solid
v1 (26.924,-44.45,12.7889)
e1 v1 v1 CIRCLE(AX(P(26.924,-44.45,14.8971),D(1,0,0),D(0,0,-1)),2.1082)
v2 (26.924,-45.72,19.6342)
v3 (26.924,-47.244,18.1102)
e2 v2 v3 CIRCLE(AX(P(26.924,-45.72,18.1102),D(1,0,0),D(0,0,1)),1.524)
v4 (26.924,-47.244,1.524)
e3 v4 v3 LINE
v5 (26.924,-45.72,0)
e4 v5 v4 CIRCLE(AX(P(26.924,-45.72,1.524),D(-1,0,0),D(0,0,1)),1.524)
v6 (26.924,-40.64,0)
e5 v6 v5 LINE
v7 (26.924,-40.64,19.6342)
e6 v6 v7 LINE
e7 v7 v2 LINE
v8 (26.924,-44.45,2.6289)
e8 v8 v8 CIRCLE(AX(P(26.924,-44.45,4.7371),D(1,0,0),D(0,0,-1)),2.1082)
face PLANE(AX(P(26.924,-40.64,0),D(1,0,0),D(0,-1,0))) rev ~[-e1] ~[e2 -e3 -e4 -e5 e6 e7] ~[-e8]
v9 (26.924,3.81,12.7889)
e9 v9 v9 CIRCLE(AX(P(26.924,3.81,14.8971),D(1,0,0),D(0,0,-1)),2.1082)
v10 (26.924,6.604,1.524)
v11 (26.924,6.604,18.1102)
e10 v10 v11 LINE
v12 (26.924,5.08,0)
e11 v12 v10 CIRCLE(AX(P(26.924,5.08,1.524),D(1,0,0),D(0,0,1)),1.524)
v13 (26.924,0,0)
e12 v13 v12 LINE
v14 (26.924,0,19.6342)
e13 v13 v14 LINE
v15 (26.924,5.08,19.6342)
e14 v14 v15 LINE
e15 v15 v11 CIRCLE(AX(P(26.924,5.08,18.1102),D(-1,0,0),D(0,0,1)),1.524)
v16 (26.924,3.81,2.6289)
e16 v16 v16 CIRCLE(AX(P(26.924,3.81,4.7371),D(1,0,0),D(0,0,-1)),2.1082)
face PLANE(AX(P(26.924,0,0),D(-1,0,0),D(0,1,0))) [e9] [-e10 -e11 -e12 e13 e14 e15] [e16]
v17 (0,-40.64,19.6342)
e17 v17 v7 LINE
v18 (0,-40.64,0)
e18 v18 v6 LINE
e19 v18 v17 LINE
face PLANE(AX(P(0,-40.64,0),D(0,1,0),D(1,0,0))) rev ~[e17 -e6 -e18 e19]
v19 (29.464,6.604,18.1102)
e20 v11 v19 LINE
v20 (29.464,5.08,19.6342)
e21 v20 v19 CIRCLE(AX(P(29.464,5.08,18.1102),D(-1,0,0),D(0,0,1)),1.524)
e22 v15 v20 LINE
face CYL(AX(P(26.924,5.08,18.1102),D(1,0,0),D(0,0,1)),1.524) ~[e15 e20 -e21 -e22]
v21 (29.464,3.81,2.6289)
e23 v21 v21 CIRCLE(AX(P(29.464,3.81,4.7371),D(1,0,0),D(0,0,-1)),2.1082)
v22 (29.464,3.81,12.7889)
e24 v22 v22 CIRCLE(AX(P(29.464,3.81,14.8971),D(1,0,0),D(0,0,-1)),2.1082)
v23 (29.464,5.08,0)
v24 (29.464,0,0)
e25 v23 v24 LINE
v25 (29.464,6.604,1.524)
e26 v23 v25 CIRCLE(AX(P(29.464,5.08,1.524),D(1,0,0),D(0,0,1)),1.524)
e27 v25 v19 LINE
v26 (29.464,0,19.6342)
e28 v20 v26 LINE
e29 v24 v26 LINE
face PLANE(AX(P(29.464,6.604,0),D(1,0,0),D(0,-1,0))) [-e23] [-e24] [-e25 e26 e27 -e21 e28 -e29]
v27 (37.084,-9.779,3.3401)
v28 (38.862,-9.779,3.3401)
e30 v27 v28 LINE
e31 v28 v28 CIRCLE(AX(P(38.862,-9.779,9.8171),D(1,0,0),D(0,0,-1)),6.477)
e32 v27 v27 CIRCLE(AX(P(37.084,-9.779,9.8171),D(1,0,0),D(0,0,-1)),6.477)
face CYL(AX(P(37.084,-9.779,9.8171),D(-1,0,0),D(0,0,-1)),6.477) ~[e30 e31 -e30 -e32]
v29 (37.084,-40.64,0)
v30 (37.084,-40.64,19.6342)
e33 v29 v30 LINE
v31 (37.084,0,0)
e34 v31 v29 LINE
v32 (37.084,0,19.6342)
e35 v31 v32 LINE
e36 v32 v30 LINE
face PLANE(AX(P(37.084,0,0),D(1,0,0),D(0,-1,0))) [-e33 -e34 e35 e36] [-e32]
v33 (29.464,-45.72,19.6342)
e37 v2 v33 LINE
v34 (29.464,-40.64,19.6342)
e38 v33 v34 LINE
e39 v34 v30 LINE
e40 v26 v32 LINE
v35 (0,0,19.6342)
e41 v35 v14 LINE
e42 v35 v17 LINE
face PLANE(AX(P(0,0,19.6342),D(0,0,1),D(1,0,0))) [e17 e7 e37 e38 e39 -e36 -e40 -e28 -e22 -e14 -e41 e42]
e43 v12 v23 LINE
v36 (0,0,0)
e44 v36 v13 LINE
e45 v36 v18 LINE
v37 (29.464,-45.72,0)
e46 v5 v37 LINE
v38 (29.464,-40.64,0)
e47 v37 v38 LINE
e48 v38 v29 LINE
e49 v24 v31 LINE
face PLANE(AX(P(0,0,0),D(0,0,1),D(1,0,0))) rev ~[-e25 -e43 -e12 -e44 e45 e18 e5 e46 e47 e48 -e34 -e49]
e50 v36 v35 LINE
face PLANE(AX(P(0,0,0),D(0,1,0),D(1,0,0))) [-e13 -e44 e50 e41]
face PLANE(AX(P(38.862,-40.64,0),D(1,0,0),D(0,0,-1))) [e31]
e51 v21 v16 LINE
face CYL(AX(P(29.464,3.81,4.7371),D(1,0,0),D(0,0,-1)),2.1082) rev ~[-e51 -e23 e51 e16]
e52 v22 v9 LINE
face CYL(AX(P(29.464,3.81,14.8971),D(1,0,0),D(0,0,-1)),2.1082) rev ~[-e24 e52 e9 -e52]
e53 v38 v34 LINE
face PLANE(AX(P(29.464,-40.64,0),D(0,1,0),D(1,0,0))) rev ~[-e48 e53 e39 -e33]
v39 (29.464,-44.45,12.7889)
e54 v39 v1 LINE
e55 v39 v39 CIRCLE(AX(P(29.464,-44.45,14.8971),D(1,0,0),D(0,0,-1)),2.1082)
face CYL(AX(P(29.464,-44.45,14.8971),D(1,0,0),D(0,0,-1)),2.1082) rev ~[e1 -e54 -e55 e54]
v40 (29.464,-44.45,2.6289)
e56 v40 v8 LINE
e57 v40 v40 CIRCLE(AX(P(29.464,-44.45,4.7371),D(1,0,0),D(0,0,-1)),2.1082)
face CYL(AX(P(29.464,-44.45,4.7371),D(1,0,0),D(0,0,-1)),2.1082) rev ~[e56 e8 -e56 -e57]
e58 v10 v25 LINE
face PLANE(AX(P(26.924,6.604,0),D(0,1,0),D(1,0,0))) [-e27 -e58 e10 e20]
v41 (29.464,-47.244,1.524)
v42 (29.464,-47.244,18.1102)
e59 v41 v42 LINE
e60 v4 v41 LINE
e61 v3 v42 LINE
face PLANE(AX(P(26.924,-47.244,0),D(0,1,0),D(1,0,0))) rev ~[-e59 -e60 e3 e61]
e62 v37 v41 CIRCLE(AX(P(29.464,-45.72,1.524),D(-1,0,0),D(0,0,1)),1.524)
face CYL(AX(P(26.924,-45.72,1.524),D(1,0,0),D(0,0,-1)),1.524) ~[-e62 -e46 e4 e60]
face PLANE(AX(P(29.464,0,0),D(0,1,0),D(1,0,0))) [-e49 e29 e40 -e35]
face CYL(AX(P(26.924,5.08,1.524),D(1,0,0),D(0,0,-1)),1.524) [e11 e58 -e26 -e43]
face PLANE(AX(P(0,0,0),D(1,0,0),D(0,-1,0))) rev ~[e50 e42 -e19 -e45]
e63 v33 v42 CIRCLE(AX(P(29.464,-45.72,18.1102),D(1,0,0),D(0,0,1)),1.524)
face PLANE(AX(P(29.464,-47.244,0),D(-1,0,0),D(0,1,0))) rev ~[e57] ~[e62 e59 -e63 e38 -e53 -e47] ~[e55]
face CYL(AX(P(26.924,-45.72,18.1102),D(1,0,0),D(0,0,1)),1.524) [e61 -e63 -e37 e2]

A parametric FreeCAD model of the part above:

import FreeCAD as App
import Part
import Sketcher

V = App.Vector
Q = App.Units.Quantity


def edges_at(feature, points):
    """Names of the edges that pass closest to the given points."""
    edges = feature.Shape.Edges
    near = lambda p: min(range(len(edges)), key=lambda i: edges[i].distToShape(Part.Vertex(*p))[0])
    return sorted({f"Edge{near(p) + 1}" for p in points})

doc = App.newDocument("Part")
body = doc.addObject("PartDesign::Body", "Body")

sketch1 = body.newObject("Sketcher::SketchObject", "Sketch")
sketch1.AttachmentSupport = (doc.getObject("XY_Plane"), [""])
sketch1.MapMode = "FlatFace"
sketch1.addGeometry(Part.LineSegment(V(26.9, 0, 0), V(0, 0, 0)), False)
sketch1.addGeometry(Part.LineSegment(V(0, 0, 0), V(0, -40.6, 0)), False)
sketch1.addGeometry(Part.LineSegment(V(0, -40.6, 0), V(26.9, -40.6, 0)), False)
sketch1.addGeometry(Part.LineSegment(V(26.9, -40.6, 0), V(26.9, -47.2, 0)), False)
sketch1.addGeometry(Part.LineSegment(V(26.9, -47.2, 0), V(29.5, -47.2, 0)), False)
sketch1.addGeometry(Part.LineSegment(V(29.5, -47.2, 0), V(29.5, -40.6, 0)), False)
sketch1.addGeometry(Part.LineSegment(V(29.5, -40.6, 0), V(37.1, -40.6, 0)), False)
sketch1.addGeometry(Part.LineSegment(V(37.1, -40.6, 0), V(37.1, 0, 0)), False)
sketch1.addGeometry(Part.LineSegment(V(37.1, 0, 0), V(29.5, 0, 0)), False)
sketch1.addGeometry(Part.LineSegment(V(29.5, 0, 0), V(29.5, 6.6, 0)), False)
sketch1.addGeometry(Part.LineSegment(V(29.5, 6.6, 0), V(26.9, 6.6, 0)), False)
sketch1.addGeometry(Part.LineSegment(V(26.9, 6.6, 0), V(26.9, 0, 0)), False)
sketch1.addConstraint(Sketcher.Constraint("Coincident", 0, 2, 1, 1))
sketch1.addConstraint(Sketcher.Constraint("Coincident", 1, 2, 2, 1))
sketch1.addConstraint(Sketcher.Constraint("Coincident", 2, 2, 3, 1))
sketch1.addConstraint(Sketcher.Constraint("Coincident", 3, 2, 4, 1))
sketch1.addConstraint(Sketcher.Constraint("Coincident", 4, 2, 5, 1))
sketch1.addConstraint(Sketcher.Constraint("Coincident", 5, 2, 6, 1))
sketch1.addConstraint(Sketcher.Constraint("Coincident", 6, 2, 7, 1))
sketch1.addConstraint(Sketcher.Constraint("Coincident", 7, 2, 8, 1))
sketch1.addConstraint(Sketcher.Constraint("Coincident", 8, 2, 9, 1))
sketch1.addConstraint(Sketcher.Constraint("Coincident", 9, 2, 10, 1))
sketch1.addConstraint(Sketcher.Constraint("Coincident", 10, 2, 11, 1))
sketch1.addConstraint(Sketcher.Constraint("Coincident", 11, 2, 0, 1))
sketch1.addConstraint(Sketcher.Constraint("Horizontal", 0))
sketch1.addConstraint(Sketcher.Constraint("Vertical", 1))
sketch1.addConstraint(Sketcher.Constraint("Horizontal", 2))
sketch1.addConstraint(Sketcher.Constraint("Vertical", 3))
sketch1.addConstraint(Sketcher.Constraint("Horizontal", 4))
sketch1.addConstraint(Sketcher.Constraint("Vertical", 5))
sketch1.addConstraint(Sketcher.Constraint("Horizontal", 6))
sketch1.addConstraint(Sketcher.Constraint("Vertical", 7))
sketch1.addConstraint(Sketcher.Constraint("Horizontal", 8))
sketch1.addConstraint(Sketcher.Constraint("Vertical", 9))
sketch1.addConstraint(Sketcher.Constraint("Horizontal", 10))
sketch1.addConstraint(Sketcher.Constraint("Vertical", 11))
sketch1.addConstraint(Sketcher.Constraint("Coincident", 0, 2, -1, 1))
sketch1.addConstraint(Sketcher.Constraint("PointOnObject", 7, 2, -1))
sketch1.addConstraint(Sketcher.Constraint("Horizontal", 2, 2, 5, 2))
sketch1.addConstraint(Sketcher.Constraint("Vertical", 5, 2, 8, 2))
sketch1.addConstraint(Sketcher.Constraint("Vertical", 3, 2, 10, 2))
sketch1.addConstraint(Sketcher.Constraint("Equal", 5, 9))
sketch1.addConstraint(Sketcher.Constraint("DistanceX", 4, 1, 4, 2, Q("0.1 in")))
sketch1.addConstraint(Sketcher.Constraint("DistanceX", 6, 1, 6, 2, Q("0.3 in")))
sketch1.addConstraint(Sketcher.Constraint("DistanceY", 1, 2, 1, 1, Q("1.6 in")))
sketch1.addConstraint(Sketcher.Constraint("DistanceX", 0, 2, 0, 1, Q("1.06 in")))
sketch1.addConstraint(Sketcher.Constraint("DistanceY", 3, 2, 3, 1, Q("0.26 in")))
pad1 = body.newObject("PartDesign::Pad", "Pad")
pad1.Profile = sketch1
pad1.Length = Q("0.773 in")

sketch2 = body.newObject("Sketcher::SketchObject", "Sketch001")
sketch2.AttachmentSupport = (doc.getObject("YZ_Plane"), [""])
sketch2.MapMode = "FlatFace"
sketch2.AttachmentOffset = App.Placement(V(0, 0, 1.46 * 25.4), App.Rotation())
sketch2.addGeometry(Part.Circle(V(-10, 10, 0), V(0, 0, 1), 6), False)
sketch2.addConstraint(Sketcher.Constraint("Diameter", 0, Q("0.51 in")))
sketch2.addConstraint(Sketcher.Constraint("DistanceX", 0, 3, -1, 1, Q("0.385 in")))
sketch2.addConstraint(Sketcher.Constraint("DistanceY", -1, 1, 0, 3, Q("0.3865 in")))
pad2 = body.newObject("PartDesign::Pad", "Pad001")
pad2.Profile = sketch2
pad2.Length = Q("0.07 in")

sketch3 = body.newObject("Sketcher::SketchObject", "Sketch002")
sketch3.AttachmentSupport = (doc.getObject("YZ_Plane"), [""])
sketch3.MapMode = "FlatFace"
sketch3.AttachmentOffset = App.Placement(V(0, 0, 1.16 * 25.4), App.Rotation())
sketch3.addGeometry(Part.Circle(V(3.8, 14.9, 0), V(0, 0, 1), 2.1), False)
sketch3.addGeometry(Part.Circle(V(3.8, 4.7, 0), V(0, 0, 1), 2.1), False)
sketch3.addGeometry(Part.Circle(V(-44.5, 14.9, 0), V(0, 0, 1), 2.1), False)
sketch3.addGeometry(Part.Circle(V(-44.5, 4.7, 0), V(0, 0, 1), 2.1), False)
sketch3.addConstraint(Sketcher.Constraint("Equal", 0, 1))
sketch3.addConstraint(Sketcher.Constraint("Equal", 1, 2))
sketch3.addConstraint(Sketcher.Constraint("Equal", 2, 3))
sketch3.addConstraint(Sketcher.Constraint("Horizontal", 0, 3, 2, 3))
sketch3.addConstraint(Sketcher.Constraint("Horizontal", 1, 3, 3, 3))
sketch3.addConstraint(Sketcher.Constraint("Vertical", 0, 3, 1, 3))
sketch3.addConstraint(Sketcher.Constraint("Vertical", 2, 3, 3, 3))
sketch3.addConstraint(Sketcher.Constraint("Diameter", 0, Q("0.166 in")))
sketch3.addConstraint(Sketcher.Constraint("DistanceX", -1, 1, 0, 3, Q("0.15 in")))
sketch3.addConstraint(Sketcher.Constraint("DistanceY", 1, 3, 0, 3, Q("0.4 in")))
sketch3.addConstraint(Sketcher.Constraint("DistanceX", 2, 3, 0, 3, Q("1.9 in")))
sketch3.addConstraint(Sketcher.Constraint("DistanceY", -1, 1, 0, 3, Q("0.5865 in")))
pocket1 = body.newObject("PartDesign::Pocket", "Pocket")
pocket1.Profile = sketch3
pocket1.Type = "ThroughAll"
doc.recompute()

fillet = body.newObject("PartDesign::Fillet", "Fillet")
fillet.Base = (pocket1, edges_at(pocket1, [
    (28.194, 6.604, 19.634),
    (28.194, 6.604, 0),
    (28.194, -47.244, 19.634),
    (28.194, -47.244, 0),
]))
fillet.Radius = Q("0.06 in")

doc.recompute()
